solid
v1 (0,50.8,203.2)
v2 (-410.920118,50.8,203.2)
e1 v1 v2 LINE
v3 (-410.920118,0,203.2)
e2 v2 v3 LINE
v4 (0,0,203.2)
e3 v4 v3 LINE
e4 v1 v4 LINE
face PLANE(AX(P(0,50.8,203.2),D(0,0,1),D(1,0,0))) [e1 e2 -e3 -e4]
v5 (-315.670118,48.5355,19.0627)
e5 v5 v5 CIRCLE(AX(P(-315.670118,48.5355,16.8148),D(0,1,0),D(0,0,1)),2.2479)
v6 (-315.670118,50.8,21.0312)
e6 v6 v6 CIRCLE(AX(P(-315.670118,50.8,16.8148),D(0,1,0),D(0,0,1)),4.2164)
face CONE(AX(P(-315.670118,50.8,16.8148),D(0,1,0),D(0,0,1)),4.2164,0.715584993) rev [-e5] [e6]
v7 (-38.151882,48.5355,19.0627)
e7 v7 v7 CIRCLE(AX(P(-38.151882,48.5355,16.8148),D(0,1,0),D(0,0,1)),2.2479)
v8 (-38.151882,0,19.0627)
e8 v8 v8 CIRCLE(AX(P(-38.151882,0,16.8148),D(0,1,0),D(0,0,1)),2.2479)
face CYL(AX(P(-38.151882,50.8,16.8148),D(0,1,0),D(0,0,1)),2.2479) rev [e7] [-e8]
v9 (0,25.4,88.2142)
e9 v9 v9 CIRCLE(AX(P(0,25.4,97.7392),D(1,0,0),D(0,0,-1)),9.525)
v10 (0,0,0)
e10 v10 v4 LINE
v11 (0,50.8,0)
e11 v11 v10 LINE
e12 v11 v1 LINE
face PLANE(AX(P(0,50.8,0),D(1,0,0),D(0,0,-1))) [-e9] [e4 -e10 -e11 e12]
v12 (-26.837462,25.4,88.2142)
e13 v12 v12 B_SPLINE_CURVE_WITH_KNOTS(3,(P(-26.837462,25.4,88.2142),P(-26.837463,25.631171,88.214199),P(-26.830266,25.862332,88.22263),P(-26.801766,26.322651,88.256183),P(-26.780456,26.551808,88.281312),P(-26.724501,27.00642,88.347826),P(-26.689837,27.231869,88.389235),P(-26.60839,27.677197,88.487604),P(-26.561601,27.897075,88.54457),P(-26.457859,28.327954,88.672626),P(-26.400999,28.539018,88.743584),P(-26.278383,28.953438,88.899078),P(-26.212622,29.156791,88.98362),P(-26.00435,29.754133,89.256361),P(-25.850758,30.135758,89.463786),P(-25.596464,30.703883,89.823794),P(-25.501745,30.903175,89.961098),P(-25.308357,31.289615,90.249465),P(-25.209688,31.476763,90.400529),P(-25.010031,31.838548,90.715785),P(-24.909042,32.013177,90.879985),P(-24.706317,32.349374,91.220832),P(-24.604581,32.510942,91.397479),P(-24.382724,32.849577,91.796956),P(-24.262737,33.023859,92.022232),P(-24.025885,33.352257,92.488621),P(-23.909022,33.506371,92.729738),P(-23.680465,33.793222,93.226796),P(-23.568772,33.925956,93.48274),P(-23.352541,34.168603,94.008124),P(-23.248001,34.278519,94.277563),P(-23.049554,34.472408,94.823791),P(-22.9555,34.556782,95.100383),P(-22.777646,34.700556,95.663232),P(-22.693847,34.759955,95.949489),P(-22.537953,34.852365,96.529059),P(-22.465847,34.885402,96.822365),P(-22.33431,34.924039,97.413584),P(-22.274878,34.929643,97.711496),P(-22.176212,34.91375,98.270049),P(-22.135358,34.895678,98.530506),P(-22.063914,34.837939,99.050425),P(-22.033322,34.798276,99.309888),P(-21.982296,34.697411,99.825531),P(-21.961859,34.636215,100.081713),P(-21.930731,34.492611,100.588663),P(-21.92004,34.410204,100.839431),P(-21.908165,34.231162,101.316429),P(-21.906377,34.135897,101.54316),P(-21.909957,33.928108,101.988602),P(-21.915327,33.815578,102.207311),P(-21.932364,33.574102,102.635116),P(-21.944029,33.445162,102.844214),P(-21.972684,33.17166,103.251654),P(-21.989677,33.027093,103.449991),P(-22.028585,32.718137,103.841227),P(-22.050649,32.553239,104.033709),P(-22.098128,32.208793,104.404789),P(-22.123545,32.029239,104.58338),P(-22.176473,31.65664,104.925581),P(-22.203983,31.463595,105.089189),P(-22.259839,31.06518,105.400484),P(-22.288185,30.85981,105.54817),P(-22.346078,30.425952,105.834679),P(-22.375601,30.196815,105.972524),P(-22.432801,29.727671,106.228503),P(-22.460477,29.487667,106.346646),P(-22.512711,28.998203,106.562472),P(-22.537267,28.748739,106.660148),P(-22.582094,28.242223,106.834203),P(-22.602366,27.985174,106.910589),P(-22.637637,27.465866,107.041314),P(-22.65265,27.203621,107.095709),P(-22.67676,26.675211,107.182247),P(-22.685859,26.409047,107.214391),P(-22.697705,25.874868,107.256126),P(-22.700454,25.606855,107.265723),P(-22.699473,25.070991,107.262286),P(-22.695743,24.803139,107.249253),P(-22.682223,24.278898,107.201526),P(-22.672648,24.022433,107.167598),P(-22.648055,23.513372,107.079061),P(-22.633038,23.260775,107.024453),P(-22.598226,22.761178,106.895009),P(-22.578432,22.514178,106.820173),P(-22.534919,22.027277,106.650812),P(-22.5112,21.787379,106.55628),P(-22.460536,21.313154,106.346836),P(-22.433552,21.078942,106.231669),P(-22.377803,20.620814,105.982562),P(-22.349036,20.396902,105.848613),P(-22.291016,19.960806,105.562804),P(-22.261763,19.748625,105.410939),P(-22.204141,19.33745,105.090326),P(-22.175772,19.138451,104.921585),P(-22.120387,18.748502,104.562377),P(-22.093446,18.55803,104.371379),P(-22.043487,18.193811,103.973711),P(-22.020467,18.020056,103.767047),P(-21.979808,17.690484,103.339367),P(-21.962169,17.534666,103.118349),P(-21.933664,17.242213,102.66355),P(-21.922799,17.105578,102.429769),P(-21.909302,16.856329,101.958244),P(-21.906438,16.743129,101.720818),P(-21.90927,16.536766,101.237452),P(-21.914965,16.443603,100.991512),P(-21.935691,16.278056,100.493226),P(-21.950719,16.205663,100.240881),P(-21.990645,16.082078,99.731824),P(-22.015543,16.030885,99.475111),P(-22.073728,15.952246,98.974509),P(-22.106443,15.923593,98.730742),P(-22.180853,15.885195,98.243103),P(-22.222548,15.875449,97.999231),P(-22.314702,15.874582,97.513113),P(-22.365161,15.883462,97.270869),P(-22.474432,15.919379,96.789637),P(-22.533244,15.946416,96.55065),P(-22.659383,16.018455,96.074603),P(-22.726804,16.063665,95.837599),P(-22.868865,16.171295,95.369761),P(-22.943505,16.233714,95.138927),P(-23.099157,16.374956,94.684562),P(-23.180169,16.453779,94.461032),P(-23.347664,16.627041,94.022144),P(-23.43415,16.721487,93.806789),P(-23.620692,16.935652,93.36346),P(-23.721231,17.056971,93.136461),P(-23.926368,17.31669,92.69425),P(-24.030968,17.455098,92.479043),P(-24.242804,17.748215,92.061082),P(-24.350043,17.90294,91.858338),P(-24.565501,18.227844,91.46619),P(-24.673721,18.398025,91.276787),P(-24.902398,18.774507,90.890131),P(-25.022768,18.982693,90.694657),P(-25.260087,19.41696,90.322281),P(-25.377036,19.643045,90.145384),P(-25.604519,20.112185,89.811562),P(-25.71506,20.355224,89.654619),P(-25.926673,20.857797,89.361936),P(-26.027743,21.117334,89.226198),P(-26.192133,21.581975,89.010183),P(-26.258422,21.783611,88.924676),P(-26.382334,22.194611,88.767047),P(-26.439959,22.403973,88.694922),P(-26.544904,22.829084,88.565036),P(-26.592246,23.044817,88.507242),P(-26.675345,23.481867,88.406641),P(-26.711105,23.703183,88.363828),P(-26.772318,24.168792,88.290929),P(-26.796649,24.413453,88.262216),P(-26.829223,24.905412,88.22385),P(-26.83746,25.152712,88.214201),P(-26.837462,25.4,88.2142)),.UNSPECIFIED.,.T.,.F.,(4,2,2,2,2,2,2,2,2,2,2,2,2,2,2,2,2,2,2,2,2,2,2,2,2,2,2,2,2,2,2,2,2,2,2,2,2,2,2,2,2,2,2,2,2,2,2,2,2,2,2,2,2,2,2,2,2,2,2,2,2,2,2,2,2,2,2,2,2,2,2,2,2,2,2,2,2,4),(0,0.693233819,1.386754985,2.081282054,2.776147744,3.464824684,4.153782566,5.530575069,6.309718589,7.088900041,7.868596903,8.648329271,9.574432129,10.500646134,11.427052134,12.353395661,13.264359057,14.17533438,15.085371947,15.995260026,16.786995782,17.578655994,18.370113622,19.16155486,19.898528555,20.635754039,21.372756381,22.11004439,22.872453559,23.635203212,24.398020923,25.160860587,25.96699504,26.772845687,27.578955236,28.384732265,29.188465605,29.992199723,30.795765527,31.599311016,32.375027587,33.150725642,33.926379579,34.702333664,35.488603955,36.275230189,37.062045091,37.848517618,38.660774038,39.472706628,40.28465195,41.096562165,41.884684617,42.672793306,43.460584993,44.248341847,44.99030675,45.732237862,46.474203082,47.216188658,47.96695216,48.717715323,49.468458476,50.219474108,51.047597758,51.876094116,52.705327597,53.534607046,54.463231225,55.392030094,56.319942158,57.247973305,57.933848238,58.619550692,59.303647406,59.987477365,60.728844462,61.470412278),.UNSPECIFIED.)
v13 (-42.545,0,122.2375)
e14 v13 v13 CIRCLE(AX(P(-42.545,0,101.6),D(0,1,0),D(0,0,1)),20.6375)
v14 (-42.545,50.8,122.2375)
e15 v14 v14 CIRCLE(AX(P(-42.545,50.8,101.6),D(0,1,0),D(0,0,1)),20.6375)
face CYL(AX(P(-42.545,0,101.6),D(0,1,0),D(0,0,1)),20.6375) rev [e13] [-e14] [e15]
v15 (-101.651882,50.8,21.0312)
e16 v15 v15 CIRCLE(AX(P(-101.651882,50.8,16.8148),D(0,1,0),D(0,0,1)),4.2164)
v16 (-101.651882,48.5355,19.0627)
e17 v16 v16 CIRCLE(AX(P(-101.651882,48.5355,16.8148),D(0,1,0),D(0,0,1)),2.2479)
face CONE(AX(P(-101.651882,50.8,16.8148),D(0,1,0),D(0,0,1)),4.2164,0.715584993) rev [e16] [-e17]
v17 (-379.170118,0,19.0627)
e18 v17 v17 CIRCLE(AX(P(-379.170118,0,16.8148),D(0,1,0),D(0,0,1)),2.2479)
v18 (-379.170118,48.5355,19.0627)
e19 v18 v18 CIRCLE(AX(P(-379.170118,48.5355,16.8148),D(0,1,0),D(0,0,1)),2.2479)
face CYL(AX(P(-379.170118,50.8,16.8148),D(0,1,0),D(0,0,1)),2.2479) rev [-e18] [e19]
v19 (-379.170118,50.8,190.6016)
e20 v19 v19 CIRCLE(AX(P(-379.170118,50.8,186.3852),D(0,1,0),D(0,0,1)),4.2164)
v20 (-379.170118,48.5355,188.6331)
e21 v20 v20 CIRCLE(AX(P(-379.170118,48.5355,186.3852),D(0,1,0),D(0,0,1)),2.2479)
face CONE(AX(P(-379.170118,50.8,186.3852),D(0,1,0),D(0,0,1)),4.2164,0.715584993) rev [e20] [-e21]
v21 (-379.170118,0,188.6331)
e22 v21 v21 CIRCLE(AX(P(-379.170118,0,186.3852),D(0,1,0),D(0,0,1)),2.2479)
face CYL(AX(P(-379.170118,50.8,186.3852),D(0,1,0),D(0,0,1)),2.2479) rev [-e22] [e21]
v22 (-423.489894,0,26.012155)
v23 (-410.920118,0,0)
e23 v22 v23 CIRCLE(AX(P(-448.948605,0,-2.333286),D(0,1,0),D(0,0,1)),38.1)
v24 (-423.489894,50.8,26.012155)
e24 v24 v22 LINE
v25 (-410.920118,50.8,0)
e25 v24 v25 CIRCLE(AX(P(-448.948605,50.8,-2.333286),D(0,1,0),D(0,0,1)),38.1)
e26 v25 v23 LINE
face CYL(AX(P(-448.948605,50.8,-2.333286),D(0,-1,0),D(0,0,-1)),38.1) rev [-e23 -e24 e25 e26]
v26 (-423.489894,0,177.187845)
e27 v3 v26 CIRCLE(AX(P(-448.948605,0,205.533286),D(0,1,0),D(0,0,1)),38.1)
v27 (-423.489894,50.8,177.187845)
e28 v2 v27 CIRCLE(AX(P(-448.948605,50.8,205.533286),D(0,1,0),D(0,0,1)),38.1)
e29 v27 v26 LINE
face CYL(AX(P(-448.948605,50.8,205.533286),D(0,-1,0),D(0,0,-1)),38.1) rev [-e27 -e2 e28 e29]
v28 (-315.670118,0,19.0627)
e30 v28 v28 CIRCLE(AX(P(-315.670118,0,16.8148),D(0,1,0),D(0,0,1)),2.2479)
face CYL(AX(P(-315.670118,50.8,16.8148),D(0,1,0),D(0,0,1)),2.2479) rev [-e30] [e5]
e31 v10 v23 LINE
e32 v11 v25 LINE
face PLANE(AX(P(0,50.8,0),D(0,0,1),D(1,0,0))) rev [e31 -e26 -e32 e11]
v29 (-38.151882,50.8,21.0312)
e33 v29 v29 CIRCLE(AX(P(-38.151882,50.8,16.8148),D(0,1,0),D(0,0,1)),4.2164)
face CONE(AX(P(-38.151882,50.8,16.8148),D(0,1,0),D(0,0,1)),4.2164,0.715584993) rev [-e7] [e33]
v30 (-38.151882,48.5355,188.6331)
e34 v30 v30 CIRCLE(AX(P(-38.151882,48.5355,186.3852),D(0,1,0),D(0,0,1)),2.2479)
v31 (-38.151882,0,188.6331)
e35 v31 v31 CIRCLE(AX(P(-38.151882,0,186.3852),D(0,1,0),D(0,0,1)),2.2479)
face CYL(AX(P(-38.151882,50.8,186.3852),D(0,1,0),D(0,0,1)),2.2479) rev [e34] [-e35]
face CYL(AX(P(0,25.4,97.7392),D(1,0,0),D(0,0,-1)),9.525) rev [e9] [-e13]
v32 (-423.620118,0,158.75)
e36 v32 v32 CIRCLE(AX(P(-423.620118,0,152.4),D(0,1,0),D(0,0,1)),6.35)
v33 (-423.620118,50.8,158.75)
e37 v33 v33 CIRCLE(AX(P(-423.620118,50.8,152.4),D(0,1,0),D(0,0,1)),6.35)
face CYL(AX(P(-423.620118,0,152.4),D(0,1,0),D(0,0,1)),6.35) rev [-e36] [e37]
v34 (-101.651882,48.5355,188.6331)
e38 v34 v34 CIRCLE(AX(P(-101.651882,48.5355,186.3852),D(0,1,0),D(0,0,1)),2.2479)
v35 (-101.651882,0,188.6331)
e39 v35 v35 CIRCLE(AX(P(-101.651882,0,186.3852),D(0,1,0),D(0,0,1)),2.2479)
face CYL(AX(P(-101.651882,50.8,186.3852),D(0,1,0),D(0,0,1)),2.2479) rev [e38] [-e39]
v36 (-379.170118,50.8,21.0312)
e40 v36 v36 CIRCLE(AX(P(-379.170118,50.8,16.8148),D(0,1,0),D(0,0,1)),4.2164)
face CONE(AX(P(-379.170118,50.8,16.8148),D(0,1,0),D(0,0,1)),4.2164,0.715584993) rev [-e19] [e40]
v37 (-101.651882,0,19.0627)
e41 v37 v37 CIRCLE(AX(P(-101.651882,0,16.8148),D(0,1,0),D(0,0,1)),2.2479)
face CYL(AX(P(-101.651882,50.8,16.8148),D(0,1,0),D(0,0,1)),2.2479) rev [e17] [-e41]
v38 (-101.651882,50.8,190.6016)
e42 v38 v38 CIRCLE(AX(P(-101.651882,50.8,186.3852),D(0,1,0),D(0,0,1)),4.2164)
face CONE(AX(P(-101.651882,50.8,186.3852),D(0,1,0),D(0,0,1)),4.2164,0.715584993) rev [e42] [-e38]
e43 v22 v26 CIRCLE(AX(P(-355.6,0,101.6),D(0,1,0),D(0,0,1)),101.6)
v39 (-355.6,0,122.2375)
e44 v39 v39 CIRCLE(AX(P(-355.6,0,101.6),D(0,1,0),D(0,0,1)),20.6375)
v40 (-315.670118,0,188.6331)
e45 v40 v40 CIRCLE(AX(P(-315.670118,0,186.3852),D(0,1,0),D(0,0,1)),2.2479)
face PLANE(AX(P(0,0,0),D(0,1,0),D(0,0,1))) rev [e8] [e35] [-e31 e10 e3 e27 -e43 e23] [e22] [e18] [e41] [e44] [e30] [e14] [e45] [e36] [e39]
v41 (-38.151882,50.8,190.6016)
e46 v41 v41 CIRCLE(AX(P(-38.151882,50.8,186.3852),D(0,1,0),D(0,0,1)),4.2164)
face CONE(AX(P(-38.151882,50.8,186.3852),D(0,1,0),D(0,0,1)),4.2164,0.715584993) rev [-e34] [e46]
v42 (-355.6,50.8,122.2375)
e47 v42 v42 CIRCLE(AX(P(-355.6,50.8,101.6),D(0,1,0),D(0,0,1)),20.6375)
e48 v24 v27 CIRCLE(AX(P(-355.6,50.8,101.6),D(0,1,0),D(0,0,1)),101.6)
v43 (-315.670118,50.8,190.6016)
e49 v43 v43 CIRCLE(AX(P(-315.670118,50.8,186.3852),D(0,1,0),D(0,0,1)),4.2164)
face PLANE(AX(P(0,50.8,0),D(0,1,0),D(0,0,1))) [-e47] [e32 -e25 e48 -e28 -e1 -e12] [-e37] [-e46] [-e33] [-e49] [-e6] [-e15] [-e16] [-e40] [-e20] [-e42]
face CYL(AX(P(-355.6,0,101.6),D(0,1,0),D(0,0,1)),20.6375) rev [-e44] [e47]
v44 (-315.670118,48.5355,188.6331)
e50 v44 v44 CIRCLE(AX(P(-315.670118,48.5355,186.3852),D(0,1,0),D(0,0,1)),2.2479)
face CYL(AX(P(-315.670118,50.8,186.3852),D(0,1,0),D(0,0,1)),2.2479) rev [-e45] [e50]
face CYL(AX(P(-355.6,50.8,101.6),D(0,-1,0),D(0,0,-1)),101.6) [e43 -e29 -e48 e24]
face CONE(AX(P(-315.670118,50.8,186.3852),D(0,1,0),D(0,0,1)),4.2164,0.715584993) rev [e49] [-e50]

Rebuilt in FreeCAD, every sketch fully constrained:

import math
import FreeCAD as App
import Part
import Sketcher

V = App.Vector
Q = App.Units.Quantity

doc = App.newDocument("Part")
body = doc.addObject("PartDesign::Body", "Body")

# Sketch on XZ plane
sketch1 = body.newObject("Sketcher::SketchObject", "Sketch")
sketch1.AttachmentSupport = (doc.getObject("XZ_Plane"), [""])
sketch1.MapMode = "FlatFace"
sketch1.addGeometry(Part.LineSegment(V(0, 203, 0), V(0, 0, 0)), False)
sketch1.addGeometry(Part.LineSegment(V(0, 0, 0), V(-411, 0, 0)), False)
sketch1.addGeometry(Part.ArcOfCircle(Part.Circle(V(-449, -2, 0), V(0, 0, 1), 38), math.radians(4), math.radians(48)), False)
sketch1.addGeometry(Part.ArcOfCircle(Part.Circle(V(-356, 102, 0), V(0, 0, 1), 102), math.radians(132), math.radians(228)), False)
sketch1.addGeometry(Part.ArcOfCircle(Part.Circle(V(-449, 206, 0), V(0, 0, 1), 38), math.radians(-48), math.radians(-4)), False)
sketch1.addGeometry(Part.LineSegment(V(-411, 203, 0), V(0, 203, 0)), False)
sketch1.addConstraint(Sketcher.Constraint("Coincident", 0, 2, 1, 1))
sketch1.addConstraint(Sketcher.Constraint("Coincident", 1, 2, 2, 1))
sketch1.addConstraint(Sketcher.Constraint("Tangent", 2, 2, 3, 2))
sketch1.addConstraint(Sketcher.Constraint("Tangent", 3, 1, 4, 1))
sketch1.addConstraint(Sketcher.Constraint("Coincident", 4, 2, 5, 1))
sketch1.addConstraint(Sketcher.Constraint("Coincident", 5, 2, 0, 1))
sketch1.addConstraint(Sketcher.Constraint("Vertical", 0))
sketch1.addConstraint(Sketcher.Constraint("Horizontal", 1))
sketch1.addConstraint(Sketcher.Constraint("Horizontal", 5))
sketch1.addConstraint(Sketcher.Constraint("Coincident", 0, 2, -1, 1))
sketch1.addConstraint(Sketcher.Constraint("Equal", 2, 4))
sketch1.addConstraint(Sketcher.Constraint("Vertical", 2, 3, 4, 3))
sketch1.addConstraint(Sketcher.Constraint("Vertical", 1, 2, 4, 2))
sketch1.addConstraint(Sketcher.Constraint("Radius", 3, Q("4 in")))
sketch1.addConstraint(Sketcher.Constraint("Radius", 2, Q("1.5 in")))
sketch1.addConstraint(Sketcher.Constraint("DistanceY", 0, 2, 0, 1, Q("8 in")))
sketch1.addConstraint(Sketcher.Constraint("DistanceX", 3, 3, -1, 1, Q("14 in")))
sketch1.addConstraint(Sketcher.Constraint("DistanceX", 1, 2, 1, 1, Q("410.920118 mm")))
pad1 = body.newObject("PartDesign::Pad", "Pad")
pad1.Profile = sketch1
pad1.Length = Q("2 in")
pad1.Reversed = True

# Sketch on XZ plane
sketch2 = body.newObject("Sketcher::SketchObject", "Sketch001")
sketch2.AttachmentSupport = (doc.getObject("XZ_Plane"), [""])
sketch2.MapMode = "FlatFace"
sketch2.AttachmentOffset = App.Placement(V(0, 0, -2 * 25.4), App.Rotation())
sketch2.addGeometry(Part.Circle(V(-379.2, 186.4, 0), V(0, 0, 1), 2.2), False)
sketch2.addGeometry(Part.Circle(V(-315.7, 186.4, 0), V(0, 0, 1), 2.2), False)
sketch2.addConstraint(Sketcher.Constraint("Equal", 0, 1))
sketch2.addConstraint(Sketcher.Constraint("Horizontal", 0, 3, 1, 3))
sketch2.addConstraint(Sketcher.Constraint("Diameter", 0, Q("0.177 in")))
sketch2.addConstraint(Sketcher.Constraint("DistanceX", 0, 3, 1, 3, Q("2.5 in")))
sketch2.addConstraint(Sketcher.Constraint("DistanceY", -1, 1, 0, 3, Q("7.338 in")))
sketch2.addConstraint(Sketcher.Constraint("DistanceX", 0, 3, -1, 1, Q("379.170118 mm")))
doc.recompute()
hole = body.newObject("PartDesign::Hole", "Hole")
hole.Profile = sketch2
hole.ThreadType = "None"
hole.Diameter = Q("0.177 in")
hole.DepthType = "ThroughAll"
hole.HoleCutType = "Countersink"
hole.HoleCutDiameter = Q("0.332 in")
hole.HoleCutCountersinkAngle = 82
hole.Reversed = True
doc.recompute()

datumplane = body.newObject("PartDesign::Plane", "DatumPlane")
datumplane.AttachmentSupport = (doc.getObject("XY_Plane"), [""])
datumplane.MapMode = "FlatFace"
datumplane.AttachmentOffset = App.Placement(V(0, 0, 4 * 25.4), App.Rotation())
mirrored = body.newObject("PartDesign::Mirrored", "Mirrored")
mirrored.Originals = [hole]
mirrored.MirrorPlane = (datumplane, [""])
body.Tip = mirrored
doc.recompute()

datumplane2 = body.newObject("PartDesign::Plane", "DatumPlane001")
datumplane2.AttachmentSupport = (doc.getObject("YZ_Plane"), [""])
datumplane2.MapMode = "FlatFace"
datumplane2.AttachmentOffset = App.Placement(V(0, 0, -8.215 * 25.4), App.Rotation())
mirrored2 = body.newObject("PartDesign::Mirrored", "Mirrored001")
mirrored2.Originals = [hole]
mirrored2.MirrorPlane = (datumplane2, [""])
body.Tip = mirrored2

# Sketch on XZ plane
sketch3 = body.newObject("Sketcher::SketchObject", "Sketch002")
sketch3.AttachmentSupport = (doc.getObject("XZ_Plane"), [""])
sketch3.MapMode = "FlatFace"
sketch3.AttachmentOffset = App.Placement(V(0, 0, -2 * 25.4), App.Rotation())
sketch3.addGeometry(Part.Circle(V(-38.2, 16.8, 0), V(0, 0, 1), 2.2), False)
sketch3.addGeometry(Part.Circle(V(-101.7, 16.8, 0), V(0, 0, 1), 2.2), False)
sketch3.addConstraint(Sketcher.Constraint("Equal", 0, 1))
sketch3.addConstraint(Sketcher.Constraint("Horizontal", 0, 3, 1, 3))
sketch3.addConstraint(Sketcher.Constraint("Diameter", 0, Q("0.177 in")))
sketch3.addConstraint(Sketcher.Constraint("DistanceX", 1, 3, 0, 3, Q("2.5 in")))
sketch3.addConstraint(Sketcher.Constraint("DistanceY", -1, 1, 0, 3, Q("0.662 in")))
sketch3.addConstraint(Sketcher.Constraint("DistanceX", 0, 3, -1, 1, Q("38.151882 mm")))
doc.recompute()
hole2 = body.newObject("PartDesign::Hole", "Hole001")
hole2.Profile = sketch3
hole2.ThreadType = "None"
hole2.Diameter = Q("0.177 in")
hole2.DepthType = "ThroughAll"
hole2.HoleCutType = "Countersink"
hole2.HoleCutDiameter = Q("0.332 in")
hole2.HoleCutCountersinkAngle = 82
hole2.Reversed = True

# Sketch on XZ plane
sketch4 = body.newObject("Sketcher::SketchObject", "Sketch003")
sketch4.AttachmentSupport = (doc.getObject("XZ_Plane"), [""])
sketch4.MapMode = "FlatFace"
sketch4.AttachmentOffset = App.Placement(V(0, 0, -2 * 25.4), App.Rotation())
sketch4.addGeometry(Part.Circle(V(-424, 152, 0), V(0, 0, 1), 6), False)
sketch4.addConstraint(Sketcher.Constraint("Diameter", 0, Q("0.5 in")))
sketch4.addConstraint(Sketcher.Constraint("DistanceY", -1, 1, 0, 3, Q("6 in")))
sketch4.addConstraint(Sketcher.Constraint("DistanceX", 0, 3, -1, 1, Q("423.620118 mm")))
pocket1 = body.newObject("PartDesign::Pocket", "Pocket")
pocket1.Profile = sketch4
pocket1.Type = "ThroughAll"
pocket1.Reversed = True

# Sketch on XZ plane
sketch5 = body.newObject("Sketcher::SketchObject", "Sketch004")
sketch5.AttachmentSupport = (doc.getObject("XZ_Plane"), [""])
sketch5.MapMode = "FlatFace"
sketch5.AttachmentOffset = App.Placement(V(0, 0, -2 * 25.4), App.Rotation())
sketch5.addGeometry(Part.Circle(V(-356, 102, 0), V(0, 0, 1), 21), False)
sketch5.addConstraint(Sketcher.Constraint("Diameter", 0, Q("1.625 in")))
sketch5.addConstraint(Sketcher.Constraint("DistanceX", 0, 3, -1, 1, Q("14 in")))
sketch5.addConstraint(Sketcher.Constraint("DistanceY", -1, 1, 0, 3, Q("4 in")))
pocket2 = body.newObject("PartDesign::Pocket", "Pocket001")
pocket2.Profile = sketch5
pocket2.Type = "ThroughAll"
pocket2.Reversed = True

# Sketch on XZ plane
sketch6 = body.newObject("Sketcher::SketchObject", "Sketch005")
sketch6.AttachmentSupport = (doc.getObject("XZ_Plane"), [""])
sketch6.MapMode = "FlatFace"
sketch6.AttachmentOffset = App.Placement(V(0, 0, -2 * 25.4), App.Rotation())
sketch6.addGeometry(Part.Circle(V(-43, 102, 0), V(0, 0, 1), 21), False)
sketch6.addConstraint(Sketcher.Constraint("Diameter", 0, Q("1.625 in")))
sketch6.addConstraint(Sketcher.Constraint("DistanceY", -1, 1, 0, 3, Q("4 in")))
sketch6.addConstraint(Sketcher.Constraint("DistanceX", 0, 3, -1, 1, Q("1.675 in")))
pocket3 = body.newObject("PartDesign::Pocket", "Pocket002")
pocket3.Profile = sketch6
pocket3.Type = "ThroughAll"
pocket3.Reversed = True

# Sketch on YZ plane
sketch7 = body.newObject("Sketcher::SketchObject", "Sketch006")
sketch7.AttachmentSupport = (doc.getObject("YZ_Plane"), [""])
sketch7.MapMode = "FlatFace"
sketch7.addGeometry(Part.Circle(V(25, 98, 0), V(0, 0, 1), 10), False)
sketch7.addConstraint(Sketcher.Constraint("Diameter", 0, Q("0.75 in")))
sketch7.addConstraint(Sketcher.Constraint("DistanceX", -1, 1, 0, 3, Q("1 in")))
sketch7.addConstraint(Sketcher.Constraint("DistanceY", -1, 1, 0, 3, Q("3.848 in")))
doc.recompute()
hole3 = body.newObject("PartDesign::Hole", "Hole002")
hole3.Profile = sketch7
hole3.ThreadType = "None"
hole3.Diameter = Q("0.75 in")
hole3.DepthType = "Dimension"
hole3.Depth = 32.961003
hole3.DrillPoint = "Angled"
hole3.DrillPointAngle = 118

doc.recompute()
